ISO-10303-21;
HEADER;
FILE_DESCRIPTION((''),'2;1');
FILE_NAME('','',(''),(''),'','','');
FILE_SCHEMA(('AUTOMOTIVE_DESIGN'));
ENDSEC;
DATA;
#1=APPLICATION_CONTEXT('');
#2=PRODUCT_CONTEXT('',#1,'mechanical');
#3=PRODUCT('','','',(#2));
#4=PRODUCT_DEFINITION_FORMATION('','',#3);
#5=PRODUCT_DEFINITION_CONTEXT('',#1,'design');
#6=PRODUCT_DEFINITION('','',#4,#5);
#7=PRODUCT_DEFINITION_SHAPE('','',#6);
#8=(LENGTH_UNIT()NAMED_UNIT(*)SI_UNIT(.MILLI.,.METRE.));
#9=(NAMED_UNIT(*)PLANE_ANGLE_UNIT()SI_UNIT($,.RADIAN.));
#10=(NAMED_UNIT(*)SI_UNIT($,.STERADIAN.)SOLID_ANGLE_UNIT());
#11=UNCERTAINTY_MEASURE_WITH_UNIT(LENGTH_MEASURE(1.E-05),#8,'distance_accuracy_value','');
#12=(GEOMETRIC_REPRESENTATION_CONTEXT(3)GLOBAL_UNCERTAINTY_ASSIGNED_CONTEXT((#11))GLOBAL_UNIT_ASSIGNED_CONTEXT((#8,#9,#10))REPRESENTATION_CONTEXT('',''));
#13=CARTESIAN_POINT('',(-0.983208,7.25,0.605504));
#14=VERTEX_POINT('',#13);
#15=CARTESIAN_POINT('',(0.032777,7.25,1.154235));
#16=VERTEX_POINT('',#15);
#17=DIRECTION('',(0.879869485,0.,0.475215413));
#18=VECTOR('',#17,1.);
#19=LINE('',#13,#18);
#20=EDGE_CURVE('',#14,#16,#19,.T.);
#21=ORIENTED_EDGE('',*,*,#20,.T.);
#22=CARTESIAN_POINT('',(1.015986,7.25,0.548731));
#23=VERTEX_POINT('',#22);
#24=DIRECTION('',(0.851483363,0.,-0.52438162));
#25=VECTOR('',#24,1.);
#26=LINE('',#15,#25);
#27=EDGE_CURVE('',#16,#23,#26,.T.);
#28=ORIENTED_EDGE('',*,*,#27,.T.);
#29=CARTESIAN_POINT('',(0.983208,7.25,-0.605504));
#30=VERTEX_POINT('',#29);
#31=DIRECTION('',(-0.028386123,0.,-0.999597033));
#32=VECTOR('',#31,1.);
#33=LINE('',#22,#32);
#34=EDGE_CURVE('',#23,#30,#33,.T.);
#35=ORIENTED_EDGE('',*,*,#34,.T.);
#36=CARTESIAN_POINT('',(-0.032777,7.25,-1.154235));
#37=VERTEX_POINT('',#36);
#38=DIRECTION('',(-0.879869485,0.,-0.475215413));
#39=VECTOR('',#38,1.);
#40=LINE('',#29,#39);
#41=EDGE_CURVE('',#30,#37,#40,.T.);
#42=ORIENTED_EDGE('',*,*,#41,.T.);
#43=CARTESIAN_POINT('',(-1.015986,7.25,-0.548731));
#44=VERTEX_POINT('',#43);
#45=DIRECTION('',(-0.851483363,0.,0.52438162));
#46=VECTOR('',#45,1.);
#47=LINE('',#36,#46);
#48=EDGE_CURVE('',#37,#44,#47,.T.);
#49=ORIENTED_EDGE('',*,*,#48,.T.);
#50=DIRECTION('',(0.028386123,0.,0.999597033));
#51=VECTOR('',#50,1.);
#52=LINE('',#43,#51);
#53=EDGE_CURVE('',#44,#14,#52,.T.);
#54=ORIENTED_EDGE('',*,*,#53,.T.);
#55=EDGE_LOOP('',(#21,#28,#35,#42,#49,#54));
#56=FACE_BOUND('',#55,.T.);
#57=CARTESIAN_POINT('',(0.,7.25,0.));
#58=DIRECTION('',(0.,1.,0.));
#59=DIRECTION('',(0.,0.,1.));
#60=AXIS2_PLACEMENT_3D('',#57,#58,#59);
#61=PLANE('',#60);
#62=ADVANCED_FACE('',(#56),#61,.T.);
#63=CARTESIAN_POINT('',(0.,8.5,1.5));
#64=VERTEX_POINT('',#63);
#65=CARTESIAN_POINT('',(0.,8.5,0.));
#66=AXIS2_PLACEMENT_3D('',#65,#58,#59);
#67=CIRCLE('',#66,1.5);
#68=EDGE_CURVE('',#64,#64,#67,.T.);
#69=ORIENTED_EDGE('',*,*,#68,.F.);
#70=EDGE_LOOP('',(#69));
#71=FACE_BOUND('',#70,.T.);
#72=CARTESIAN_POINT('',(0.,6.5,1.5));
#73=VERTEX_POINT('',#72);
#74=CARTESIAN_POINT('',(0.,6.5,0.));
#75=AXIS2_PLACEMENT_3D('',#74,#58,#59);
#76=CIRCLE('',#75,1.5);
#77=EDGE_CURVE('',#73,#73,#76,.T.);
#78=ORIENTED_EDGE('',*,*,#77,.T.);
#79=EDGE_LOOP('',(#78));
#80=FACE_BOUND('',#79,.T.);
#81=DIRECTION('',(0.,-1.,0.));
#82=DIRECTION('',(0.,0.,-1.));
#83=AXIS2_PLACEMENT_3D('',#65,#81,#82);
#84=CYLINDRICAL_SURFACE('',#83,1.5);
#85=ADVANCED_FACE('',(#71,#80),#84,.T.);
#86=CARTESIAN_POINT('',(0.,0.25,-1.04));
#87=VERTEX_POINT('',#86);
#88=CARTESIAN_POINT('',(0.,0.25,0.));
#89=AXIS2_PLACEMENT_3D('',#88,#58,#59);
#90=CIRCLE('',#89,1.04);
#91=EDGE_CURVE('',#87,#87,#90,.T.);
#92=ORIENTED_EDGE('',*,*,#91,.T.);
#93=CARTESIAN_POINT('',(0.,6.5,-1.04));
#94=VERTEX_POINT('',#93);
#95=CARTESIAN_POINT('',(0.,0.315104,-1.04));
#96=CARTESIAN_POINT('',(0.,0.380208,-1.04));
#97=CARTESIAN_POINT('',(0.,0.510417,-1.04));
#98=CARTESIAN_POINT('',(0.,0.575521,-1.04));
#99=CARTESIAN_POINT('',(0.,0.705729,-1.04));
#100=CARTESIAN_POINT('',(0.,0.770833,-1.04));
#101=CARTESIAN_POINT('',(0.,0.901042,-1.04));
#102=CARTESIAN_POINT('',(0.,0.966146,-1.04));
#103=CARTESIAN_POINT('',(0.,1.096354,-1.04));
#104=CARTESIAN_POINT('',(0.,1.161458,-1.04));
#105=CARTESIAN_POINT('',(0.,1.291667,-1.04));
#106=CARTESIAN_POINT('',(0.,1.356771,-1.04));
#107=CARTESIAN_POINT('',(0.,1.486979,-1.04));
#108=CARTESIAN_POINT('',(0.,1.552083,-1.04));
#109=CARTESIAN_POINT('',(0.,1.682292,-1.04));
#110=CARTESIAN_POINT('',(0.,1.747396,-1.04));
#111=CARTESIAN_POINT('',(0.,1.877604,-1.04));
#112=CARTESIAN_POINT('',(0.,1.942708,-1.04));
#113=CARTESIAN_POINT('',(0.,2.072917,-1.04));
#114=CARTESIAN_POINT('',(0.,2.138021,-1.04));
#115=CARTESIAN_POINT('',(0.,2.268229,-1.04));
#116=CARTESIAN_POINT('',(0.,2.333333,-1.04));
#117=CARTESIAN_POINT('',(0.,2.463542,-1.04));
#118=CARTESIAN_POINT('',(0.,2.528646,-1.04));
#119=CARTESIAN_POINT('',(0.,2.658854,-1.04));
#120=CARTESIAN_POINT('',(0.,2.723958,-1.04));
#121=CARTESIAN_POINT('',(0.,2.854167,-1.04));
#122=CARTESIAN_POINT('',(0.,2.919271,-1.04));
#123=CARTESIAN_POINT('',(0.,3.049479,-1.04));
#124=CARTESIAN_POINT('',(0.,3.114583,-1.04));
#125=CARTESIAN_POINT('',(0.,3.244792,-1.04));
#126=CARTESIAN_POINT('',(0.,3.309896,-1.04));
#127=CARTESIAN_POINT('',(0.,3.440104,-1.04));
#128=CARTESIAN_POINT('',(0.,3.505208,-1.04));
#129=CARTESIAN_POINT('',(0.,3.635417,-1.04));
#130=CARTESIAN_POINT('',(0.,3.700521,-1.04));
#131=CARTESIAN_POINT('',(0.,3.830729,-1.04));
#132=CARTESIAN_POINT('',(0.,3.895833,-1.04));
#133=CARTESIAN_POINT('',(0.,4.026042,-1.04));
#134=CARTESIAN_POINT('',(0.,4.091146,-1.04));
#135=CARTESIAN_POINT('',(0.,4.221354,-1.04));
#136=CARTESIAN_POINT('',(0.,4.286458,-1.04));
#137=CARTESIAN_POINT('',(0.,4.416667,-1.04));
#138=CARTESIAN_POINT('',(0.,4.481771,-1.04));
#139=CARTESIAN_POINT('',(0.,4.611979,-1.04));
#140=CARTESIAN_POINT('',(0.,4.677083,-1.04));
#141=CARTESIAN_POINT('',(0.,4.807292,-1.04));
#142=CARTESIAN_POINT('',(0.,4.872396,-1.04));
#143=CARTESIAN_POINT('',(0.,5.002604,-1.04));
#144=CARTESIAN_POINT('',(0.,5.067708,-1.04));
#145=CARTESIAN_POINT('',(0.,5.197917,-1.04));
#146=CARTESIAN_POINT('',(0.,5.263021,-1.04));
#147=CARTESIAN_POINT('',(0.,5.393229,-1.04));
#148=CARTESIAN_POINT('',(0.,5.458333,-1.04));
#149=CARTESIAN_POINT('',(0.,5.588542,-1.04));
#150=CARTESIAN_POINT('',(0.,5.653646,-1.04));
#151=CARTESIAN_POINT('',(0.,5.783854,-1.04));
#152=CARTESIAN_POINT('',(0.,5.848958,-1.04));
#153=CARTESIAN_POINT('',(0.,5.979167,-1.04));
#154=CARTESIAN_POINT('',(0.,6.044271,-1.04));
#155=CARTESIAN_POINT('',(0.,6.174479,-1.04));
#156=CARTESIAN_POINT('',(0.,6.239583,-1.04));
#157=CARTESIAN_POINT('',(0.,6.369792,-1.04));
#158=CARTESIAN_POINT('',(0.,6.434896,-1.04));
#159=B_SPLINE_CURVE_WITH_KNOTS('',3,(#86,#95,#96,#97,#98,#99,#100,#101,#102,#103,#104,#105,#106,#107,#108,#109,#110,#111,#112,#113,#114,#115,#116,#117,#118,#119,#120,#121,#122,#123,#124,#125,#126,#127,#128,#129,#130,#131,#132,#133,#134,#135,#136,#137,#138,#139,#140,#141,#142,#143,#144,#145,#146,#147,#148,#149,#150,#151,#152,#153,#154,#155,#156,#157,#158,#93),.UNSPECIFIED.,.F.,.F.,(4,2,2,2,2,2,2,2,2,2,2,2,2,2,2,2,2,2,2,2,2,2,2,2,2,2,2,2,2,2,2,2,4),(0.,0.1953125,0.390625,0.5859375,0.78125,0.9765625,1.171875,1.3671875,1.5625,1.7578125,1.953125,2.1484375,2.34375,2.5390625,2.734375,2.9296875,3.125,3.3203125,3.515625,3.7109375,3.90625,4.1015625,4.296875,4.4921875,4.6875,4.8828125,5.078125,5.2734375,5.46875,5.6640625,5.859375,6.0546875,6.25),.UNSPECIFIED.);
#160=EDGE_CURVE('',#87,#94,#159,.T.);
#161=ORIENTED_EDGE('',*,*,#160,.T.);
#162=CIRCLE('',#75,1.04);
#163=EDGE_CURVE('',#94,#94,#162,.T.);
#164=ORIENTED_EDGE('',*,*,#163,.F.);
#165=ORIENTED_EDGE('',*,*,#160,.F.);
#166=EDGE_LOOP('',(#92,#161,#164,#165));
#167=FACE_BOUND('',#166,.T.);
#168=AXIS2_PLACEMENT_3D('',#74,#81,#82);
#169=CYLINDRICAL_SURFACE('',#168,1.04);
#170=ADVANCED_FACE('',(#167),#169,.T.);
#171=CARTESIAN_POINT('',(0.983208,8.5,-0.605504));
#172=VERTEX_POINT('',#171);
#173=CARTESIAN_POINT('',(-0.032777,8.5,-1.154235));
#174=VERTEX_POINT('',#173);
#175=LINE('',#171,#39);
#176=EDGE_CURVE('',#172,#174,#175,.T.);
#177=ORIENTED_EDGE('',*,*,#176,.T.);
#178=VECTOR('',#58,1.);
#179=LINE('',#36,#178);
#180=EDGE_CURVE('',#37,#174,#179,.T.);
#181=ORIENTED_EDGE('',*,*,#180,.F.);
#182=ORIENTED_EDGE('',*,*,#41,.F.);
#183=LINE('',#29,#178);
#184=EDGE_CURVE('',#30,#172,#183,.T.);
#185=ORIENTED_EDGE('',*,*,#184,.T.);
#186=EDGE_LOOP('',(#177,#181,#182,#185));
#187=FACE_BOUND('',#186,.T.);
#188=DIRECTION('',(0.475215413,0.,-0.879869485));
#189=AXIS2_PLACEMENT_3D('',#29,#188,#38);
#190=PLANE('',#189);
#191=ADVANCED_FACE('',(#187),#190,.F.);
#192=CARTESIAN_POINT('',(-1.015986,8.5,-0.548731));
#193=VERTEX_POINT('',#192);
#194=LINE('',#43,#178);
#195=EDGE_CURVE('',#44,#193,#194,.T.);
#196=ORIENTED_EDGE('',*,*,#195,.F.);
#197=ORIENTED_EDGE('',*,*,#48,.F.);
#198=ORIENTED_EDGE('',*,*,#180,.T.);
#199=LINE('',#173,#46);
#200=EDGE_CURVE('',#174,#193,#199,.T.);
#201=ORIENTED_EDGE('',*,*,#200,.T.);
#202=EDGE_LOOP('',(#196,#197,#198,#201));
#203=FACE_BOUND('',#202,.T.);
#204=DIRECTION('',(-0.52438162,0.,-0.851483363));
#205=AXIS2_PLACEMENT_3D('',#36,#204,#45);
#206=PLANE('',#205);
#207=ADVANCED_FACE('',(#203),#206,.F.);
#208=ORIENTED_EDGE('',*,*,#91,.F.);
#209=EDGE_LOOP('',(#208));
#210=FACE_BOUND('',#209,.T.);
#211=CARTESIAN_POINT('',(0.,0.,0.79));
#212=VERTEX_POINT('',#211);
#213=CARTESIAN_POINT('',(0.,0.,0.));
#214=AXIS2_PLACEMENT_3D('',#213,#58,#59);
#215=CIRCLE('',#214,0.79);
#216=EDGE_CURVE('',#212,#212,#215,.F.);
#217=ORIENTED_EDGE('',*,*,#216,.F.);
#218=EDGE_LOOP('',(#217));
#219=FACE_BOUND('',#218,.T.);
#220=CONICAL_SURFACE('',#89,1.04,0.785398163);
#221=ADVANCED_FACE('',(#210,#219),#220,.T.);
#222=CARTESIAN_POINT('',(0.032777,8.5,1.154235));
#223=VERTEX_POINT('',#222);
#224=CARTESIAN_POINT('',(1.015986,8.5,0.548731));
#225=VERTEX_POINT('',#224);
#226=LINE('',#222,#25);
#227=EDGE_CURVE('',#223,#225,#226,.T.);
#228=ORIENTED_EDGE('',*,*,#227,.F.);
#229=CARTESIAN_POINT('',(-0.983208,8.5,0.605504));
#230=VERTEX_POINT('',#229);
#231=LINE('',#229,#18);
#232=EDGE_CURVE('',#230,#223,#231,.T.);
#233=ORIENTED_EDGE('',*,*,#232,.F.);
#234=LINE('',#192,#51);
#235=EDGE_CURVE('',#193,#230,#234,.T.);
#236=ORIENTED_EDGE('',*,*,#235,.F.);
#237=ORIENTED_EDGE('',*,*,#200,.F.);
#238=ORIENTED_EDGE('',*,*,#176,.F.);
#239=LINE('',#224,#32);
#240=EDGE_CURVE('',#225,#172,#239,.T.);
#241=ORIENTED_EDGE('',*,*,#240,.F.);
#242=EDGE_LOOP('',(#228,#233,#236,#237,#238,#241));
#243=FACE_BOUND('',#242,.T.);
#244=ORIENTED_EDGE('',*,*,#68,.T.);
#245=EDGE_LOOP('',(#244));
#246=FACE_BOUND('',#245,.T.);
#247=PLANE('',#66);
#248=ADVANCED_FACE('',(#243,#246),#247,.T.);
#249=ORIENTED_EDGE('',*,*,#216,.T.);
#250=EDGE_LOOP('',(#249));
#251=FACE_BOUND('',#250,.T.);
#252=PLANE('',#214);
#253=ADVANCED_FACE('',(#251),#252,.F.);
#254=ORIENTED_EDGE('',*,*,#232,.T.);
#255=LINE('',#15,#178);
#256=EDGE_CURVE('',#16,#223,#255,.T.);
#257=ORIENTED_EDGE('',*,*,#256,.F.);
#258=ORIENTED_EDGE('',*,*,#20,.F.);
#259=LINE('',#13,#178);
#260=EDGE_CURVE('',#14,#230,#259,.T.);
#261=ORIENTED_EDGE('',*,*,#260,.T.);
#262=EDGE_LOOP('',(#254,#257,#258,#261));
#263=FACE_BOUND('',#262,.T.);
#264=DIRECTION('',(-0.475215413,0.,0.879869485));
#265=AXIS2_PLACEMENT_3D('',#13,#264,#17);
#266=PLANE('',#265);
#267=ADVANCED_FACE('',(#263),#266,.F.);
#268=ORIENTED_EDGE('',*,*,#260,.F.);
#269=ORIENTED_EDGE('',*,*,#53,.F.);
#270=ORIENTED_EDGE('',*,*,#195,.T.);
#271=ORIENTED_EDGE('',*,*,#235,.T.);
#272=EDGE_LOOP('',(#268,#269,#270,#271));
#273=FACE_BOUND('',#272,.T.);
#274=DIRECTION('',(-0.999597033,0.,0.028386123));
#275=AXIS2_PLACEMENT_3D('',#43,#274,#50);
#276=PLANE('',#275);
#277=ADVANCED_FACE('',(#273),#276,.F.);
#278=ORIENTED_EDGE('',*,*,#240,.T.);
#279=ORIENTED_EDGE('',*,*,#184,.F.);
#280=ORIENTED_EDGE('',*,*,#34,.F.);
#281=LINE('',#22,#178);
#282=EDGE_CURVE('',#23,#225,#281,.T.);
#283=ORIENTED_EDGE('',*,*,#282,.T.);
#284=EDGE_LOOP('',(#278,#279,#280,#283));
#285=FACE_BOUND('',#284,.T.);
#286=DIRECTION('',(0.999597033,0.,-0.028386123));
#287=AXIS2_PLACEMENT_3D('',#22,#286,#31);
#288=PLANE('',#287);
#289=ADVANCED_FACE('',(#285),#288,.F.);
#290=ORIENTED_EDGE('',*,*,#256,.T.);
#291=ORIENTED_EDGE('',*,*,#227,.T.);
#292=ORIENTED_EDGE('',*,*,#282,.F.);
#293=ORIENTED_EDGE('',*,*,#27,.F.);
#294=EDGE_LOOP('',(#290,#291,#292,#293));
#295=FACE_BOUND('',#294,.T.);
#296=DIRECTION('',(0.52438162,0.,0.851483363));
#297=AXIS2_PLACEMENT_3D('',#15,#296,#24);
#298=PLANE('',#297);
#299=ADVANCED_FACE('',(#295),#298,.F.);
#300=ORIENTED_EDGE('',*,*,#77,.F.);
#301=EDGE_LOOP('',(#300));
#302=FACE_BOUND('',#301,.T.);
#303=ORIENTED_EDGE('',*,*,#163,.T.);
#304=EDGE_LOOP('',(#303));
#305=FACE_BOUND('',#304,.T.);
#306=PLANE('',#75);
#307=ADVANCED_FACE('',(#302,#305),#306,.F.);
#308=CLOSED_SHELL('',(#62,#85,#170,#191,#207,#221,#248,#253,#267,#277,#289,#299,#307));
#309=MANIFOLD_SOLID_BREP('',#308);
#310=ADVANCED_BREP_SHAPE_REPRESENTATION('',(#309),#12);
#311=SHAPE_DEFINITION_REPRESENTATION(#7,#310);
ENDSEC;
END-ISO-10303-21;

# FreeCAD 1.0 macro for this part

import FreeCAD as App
import Part
import Sketcher
from FreeCAD import Vector


def edges_at(feature, points):
    """Names of the edges that pass closest to the given points."""
    edges = feature.Shape.Edges
    near = lambda p: min(range(len(edges)), key=lambda i: edges[i].distToShape(Part.Vertex(*p))[0])
    return sorted({f"Edge{near(p) + 1}" for p in points})

doc = App.newDocument("Part")
params = doc.addObject("Spreadsheet::Sheet", "Params")
for row, (alias, value) in enumerate([
    ("sketch1_diameter", "2.08 mm"),
    ("pad1_length", "6.5 mm"),
    ("sketch2_diameter", "3 mm"),
    ("pad2_length", "2 mm"),
    ("pocket1_length", "1.25 mm"),
    ("chamfer_size", "0.25 mm"),
], start=1):
    params.set(f"A{row}", alias)
    params.set(f"B{row}", "=" + value)
    params.setAlias(f"B{row}", alias)

body = doc.addObject("PartDesign::Body", "Body")

# Sketch on XZ plane
sketch1 = doc.addObject("Sketcher::SketchObject", "Sketch")
body.addObject(sketch1)
sketch1.AttachmentSupport = (doc.XZ_Plane, [""])
sketch1.MapMode = "FlatFace"
sketch1.addGeometry(Part.Circle(Vector(0, 0, 0), Vector(0, 0, 1), 1.04), False)
sketch1.addConstraint(Sketcher.Constraint("Coincident", 0, 3, -1, 1))
sketch1.addConstraint(Sketcher.Constraint("Diameter", 0, 2.08))
sketch1.setExpression("Constraints[1]", "Params.sketch1_diameter")
pad1 = doc.addObject("PartDesign::Pad", "Pad")
body.addObject(pad1)
pad1.Profile = sketch1
pad1.setExpression("Length", "Params.pad1_length")
pad1.Reversed = True

# Sketch on XZ plane
sketch2 = doc.addObject("Sketcher::SketchObject", "Sketch001")
body.addObject(sketch2)
sketch2.AttachmentSupport = (doc.XZ_Plane, [""])
sketch2.MapMode = "FlatFace"
sketch2.AttachmentOffset = App.Placement(Vector(0, 0, -6.5), App.Rotation())
sketch2.addGeometry(Part.Circle(Vector(0, 0, 0), Vector(0, 0, 1), 1.5), False)
sketch2.addConstraint(Sketcher.Constraint("Coincident", 0, 3, -1, 1))
sketch2.addConstraint(Sketcher.Constraint("Diameter", 0, 3.0))
sketch2.setExpression("Constraints[1]", "Params.sketch2_diameter")
pad2 = doc.addObject("PartDesign::Pad", "Pad001")
body.addObject(pad2)
pad2.Profile = sketch2
pad2.setExpression("Length", "Params.pad2_length")
pad2.Reversed = True

# Sketch on XZ plane
sketch3 = doc.addObject("Sketcher::SketchObject", "Sketch002")
body.addObject(sketch3)
sketch3.AttachmentSupport = (doc.XZ_Plane, [""])
sketch3.MapMode = "FlatFace"
sketch3.AttachmentOffset = App.Placement(Vector(0, 0, -8.5), App.Rotation())
sketch3.addGeometry(Part.LineSegment(Vector(-0.032777, -1.154235, 0), Vector(-1.015986, -0.548731, 0)), False)
sketch3.addGeometry(Part.LineSegment(Vector(-1.015986, -0.548731, 0), Vector(-0.983208, 0.605504, 0)), False)
sketch3.addGeometry(Part.LineSegment(Vector(-0.983208, 0.605504, 0), Vector(0.032777, 1.154235, 0)), False)
sketch3.addGeometry(Part.LineSegment(Vector(0.032777, 1.154235, 0), Vector(1.015986, 0.548731, 0)), False)
sketch3.addGeometry(Part.LineSegment(Vector(1.015986, 0.548731, 0), Vector(0.983208, -0.605504, 0)), False)
sketch3.addGeometry(Part.LineSegment(Vector(0.983208, -0.605504, 0), Vector(-0.032777, -1.154235, 0)), False)
sketch3.addConstraint(Sketcher.Constraint("Coincident", 0, 2, 1, 1))
sketch3.addConstraint(Sketcher.Constraint("Coincident", 1, 2, 2, 1))
sketch3.addConstraint(Sketcher.Constraint("Coincident", 2, 2, 3, 1))
sketch3.addConstraint(Sketcher.Constraint("Coincident", 3, 2, 4, 1))
sketch3.addConstraint(Sketcher.Constraint("Coincident", 4, 2, 5, 1))
sketch3.addConstraint(Sketcher.Constraint("Coincident", 5, 2, 0, 1))
sketch3.addConstraint(Sketcher.Constraint("Symmetric", 0, 2, 3, 2, -1, 1))
sketch3.addConstraint(Sketcher.Constraint("Symmetric", 1, 2, 4, 2, -1, 1))
sketch3.addConstraint(Sketcher.Constraint("Symmetric", 2, 2, 5, 2, -1, 1))
sketch3.addConstraint(Sketcher.Constraint("Equal", 0, 1))
sketch3.addConstraint(Sketcher.Constraint("Equal", 1, 2))
sketch3.addConstraint(Sketcher.Constraint("Distance", 0, 1.154701))
sketch3.addConstraint(Sketcher.Constraint("DistanceY", 0, 2, -1, 1, 0.548731))
sketch3.addConstraint(Sketcher.Constraint("DistanceX", 1, 2, -1, 1, 0.983208))
sketch3.addConstraint(Sketcher.Constraint("DistanceY", 1, 2, 2, 2, 0.548731))
pocket1 = doc.addObject("PartDesign::Pocket", "Pocket")
body.addObject(pocket1)
pocket1.Profile = sketch3
pocket1.setExpression("Length", "Params.pocket1_length")
pocket1.Reversed = True
doc.recompute()

chamfer = doc.addObject("PartDesign::Chamfer", "Chamfer")
body.addObject(chamfer)
chamfer.Base = (pocket1, edges_at(pocket1, [(0, 0, 1.04)]))
chamfer.setExpression("Size", "Params.chamfer_size")

doc.recompute()
